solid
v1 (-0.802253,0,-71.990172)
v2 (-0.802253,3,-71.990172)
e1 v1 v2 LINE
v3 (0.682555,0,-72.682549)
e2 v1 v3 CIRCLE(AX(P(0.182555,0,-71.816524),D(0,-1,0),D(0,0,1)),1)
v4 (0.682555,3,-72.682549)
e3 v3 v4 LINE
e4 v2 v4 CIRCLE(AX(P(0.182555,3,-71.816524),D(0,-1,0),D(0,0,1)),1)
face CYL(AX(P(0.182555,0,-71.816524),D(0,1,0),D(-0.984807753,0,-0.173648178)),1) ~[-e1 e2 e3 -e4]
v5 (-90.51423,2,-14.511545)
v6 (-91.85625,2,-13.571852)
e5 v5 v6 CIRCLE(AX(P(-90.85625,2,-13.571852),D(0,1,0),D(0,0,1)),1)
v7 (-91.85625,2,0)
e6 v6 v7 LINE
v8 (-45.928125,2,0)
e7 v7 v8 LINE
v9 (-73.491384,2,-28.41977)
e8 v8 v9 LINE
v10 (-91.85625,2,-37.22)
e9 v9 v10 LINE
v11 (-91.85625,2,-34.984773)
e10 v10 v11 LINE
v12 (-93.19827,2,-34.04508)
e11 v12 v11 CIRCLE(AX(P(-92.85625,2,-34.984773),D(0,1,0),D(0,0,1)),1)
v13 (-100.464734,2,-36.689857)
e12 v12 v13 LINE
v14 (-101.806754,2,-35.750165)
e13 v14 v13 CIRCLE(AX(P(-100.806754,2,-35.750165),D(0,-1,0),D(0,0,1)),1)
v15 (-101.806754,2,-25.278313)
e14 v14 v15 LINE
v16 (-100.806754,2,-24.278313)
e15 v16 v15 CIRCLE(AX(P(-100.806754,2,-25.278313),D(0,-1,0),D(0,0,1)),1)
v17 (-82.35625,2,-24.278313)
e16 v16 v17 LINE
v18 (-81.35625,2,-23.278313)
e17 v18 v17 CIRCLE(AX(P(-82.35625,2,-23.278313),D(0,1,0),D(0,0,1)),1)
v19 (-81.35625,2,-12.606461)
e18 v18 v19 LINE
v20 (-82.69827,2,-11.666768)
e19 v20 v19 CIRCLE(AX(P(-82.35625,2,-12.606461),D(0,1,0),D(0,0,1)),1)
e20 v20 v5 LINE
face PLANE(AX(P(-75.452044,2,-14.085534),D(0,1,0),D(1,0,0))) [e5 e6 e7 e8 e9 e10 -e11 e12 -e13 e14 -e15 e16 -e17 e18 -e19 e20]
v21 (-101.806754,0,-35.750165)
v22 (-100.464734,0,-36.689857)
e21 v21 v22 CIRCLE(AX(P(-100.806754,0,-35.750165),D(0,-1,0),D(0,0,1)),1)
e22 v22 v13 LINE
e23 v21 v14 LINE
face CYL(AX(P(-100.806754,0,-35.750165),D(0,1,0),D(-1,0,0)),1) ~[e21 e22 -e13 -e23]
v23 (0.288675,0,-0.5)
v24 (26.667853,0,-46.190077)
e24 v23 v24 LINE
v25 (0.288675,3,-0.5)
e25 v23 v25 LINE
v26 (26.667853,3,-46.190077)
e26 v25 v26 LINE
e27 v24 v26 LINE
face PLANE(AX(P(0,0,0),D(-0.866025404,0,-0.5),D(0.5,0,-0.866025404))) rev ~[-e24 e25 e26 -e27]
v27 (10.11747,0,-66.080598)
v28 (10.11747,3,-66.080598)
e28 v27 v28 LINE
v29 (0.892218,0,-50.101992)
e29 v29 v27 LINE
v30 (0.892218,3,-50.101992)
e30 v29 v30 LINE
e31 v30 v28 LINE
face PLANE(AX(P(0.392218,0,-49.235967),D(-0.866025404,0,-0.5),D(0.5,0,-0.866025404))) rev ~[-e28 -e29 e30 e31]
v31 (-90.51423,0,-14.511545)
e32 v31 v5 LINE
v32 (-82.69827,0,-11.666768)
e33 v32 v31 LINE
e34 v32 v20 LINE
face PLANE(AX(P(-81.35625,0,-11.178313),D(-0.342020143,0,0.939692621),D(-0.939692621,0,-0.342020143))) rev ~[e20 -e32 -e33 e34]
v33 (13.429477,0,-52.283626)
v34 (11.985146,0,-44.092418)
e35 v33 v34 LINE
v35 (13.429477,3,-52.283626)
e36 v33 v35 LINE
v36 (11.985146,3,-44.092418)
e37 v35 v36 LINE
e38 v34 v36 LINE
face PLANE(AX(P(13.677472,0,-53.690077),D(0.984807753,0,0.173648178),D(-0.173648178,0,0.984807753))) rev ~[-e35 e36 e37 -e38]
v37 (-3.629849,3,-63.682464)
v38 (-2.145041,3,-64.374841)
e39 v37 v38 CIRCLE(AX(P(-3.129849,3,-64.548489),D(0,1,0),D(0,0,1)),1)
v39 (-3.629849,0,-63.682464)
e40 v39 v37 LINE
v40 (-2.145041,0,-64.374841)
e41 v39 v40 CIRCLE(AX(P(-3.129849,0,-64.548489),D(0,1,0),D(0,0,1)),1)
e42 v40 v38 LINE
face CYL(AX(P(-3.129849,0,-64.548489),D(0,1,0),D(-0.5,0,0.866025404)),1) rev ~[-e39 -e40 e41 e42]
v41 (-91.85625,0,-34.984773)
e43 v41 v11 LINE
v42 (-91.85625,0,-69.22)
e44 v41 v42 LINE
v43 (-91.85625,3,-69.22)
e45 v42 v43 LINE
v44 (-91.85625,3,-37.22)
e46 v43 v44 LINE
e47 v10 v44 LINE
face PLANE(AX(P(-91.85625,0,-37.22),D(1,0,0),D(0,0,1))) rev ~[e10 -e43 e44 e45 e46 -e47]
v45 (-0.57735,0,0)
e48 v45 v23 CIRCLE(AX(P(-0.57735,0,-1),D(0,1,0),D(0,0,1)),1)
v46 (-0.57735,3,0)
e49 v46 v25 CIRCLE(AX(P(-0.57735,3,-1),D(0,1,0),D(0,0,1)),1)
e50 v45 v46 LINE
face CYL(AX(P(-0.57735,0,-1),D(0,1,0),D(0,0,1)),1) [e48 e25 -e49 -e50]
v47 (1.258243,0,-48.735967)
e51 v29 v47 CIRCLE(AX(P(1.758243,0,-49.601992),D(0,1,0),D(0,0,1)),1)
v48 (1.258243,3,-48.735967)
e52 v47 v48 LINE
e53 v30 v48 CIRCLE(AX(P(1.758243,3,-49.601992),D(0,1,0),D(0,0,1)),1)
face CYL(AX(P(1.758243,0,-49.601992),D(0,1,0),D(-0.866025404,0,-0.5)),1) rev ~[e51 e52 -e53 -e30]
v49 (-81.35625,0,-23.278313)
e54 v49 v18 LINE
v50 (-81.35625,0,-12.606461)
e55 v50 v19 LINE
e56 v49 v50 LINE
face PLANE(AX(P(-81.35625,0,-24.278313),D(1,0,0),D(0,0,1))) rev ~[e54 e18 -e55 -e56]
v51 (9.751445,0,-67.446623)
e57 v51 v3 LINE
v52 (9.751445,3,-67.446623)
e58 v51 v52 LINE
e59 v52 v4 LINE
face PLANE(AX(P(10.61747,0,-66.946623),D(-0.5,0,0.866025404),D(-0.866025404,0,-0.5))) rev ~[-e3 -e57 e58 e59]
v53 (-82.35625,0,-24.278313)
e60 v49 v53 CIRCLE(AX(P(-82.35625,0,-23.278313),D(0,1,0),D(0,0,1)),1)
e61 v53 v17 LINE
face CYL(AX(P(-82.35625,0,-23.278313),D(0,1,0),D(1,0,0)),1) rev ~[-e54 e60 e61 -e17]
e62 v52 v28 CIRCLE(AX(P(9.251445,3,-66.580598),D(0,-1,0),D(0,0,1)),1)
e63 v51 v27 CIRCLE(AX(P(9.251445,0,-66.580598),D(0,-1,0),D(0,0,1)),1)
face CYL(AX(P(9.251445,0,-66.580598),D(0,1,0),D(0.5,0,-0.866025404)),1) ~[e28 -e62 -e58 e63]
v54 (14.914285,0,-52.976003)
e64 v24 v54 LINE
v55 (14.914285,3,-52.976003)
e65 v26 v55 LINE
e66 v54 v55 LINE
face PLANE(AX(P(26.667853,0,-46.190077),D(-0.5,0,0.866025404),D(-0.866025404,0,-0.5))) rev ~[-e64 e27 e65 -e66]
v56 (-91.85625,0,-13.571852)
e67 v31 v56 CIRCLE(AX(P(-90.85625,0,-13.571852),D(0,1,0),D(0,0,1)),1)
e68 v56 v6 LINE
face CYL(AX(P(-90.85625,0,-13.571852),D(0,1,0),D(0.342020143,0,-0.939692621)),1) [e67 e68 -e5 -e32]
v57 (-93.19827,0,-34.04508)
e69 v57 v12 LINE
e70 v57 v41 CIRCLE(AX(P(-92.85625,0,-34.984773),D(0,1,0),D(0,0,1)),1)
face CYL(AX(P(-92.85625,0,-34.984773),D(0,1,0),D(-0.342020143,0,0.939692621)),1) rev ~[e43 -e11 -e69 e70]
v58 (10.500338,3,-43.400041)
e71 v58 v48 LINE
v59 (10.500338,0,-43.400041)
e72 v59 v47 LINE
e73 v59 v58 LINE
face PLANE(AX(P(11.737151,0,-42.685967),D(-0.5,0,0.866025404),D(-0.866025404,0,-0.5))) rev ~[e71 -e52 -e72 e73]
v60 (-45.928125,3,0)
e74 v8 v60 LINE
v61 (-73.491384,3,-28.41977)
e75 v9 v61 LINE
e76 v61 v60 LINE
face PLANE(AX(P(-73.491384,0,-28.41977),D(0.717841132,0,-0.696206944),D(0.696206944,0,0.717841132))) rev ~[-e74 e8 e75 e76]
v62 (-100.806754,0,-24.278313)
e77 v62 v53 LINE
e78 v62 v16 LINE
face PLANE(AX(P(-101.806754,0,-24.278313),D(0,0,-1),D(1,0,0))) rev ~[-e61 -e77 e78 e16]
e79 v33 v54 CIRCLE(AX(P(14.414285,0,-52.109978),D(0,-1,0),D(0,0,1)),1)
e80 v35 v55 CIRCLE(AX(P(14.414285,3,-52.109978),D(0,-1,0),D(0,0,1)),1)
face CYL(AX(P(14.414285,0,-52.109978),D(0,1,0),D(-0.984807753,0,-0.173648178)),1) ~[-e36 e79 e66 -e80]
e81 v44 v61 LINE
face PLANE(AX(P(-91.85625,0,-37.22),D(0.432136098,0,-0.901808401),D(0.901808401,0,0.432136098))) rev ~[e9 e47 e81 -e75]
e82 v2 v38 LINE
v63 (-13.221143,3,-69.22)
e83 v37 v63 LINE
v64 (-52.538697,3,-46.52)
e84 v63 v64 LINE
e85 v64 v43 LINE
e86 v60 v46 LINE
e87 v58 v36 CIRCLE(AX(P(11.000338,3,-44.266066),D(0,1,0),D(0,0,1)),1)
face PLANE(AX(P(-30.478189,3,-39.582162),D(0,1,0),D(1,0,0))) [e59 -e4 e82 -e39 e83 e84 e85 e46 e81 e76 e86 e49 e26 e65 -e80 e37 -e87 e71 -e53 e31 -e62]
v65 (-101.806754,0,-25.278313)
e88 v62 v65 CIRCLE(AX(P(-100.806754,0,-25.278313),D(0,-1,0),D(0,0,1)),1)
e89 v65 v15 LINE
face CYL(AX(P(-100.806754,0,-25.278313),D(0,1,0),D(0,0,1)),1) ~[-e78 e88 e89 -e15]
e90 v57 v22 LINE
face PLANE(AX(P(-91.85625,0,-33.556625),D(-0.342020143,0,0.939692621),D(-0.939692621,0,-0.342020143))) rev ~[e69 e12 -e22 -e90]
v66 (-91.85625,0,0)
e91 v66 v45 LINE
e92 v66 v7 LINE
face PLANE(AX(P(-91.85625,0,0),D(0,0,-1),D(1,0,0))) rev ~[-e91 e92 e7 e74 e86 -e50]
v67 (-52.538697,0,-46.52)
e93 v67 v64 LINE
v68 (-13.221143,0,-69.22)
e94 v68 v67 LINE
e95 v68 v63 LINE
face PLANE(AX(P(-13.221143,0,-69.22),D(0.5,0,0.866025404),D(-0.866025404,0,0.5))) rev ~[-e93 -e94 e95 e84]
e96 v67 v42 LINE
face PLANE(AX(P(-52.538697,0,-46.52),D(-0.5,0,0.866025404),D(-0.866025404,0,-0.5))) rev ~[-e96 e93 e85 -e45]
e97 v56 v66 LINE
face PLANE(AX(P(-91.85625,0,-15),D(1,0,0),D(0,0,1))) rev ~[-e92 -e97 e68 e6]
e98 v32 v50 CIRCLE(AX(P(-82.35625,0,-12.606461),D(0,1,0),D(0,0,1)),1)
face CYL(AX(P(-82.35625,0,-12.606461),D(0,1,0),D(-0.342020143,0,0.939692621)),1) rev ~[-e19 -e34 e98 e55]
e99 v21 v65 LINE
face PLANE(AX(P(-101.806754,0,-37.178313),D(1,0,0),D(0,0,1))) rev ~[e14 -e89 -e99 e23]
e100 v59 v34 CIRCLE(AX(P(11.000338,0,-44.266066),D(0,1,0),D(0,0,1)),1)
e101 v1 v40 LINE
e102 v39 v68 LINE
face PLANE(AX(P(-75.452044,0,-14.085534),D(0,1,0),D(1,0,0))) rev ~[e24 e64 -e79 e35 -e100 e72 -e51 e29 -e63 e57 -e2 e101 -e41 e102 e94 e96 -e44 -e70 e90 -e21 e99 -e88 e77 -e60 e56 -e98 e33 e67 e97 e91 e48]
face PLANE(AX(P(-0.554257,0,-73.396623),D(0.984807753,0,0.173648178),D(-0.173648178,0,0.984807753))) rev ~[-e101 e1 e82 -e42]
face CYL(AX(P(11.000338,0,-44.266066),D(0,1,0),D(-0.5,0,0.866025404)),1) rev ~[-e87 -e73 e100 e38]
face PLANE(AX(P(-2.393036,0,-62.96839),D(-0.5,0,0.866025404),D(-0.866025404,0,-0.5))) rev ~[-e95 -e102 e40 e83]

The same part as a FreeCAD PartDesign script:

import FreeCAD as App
import Part
import Sketcher
Q = App.Units.Quantity


def edges_at(feature, points):
    """Names of the edges that pass closest to the given points."""
    edges = feature.Shape.Edges
    near = lambda p: min(range(len(edges)), key=lambda i: edges[i].distToShape(Part.Vertex(*p))[0])
    return sorted({f"Edge{near(p) + 1}" for p in points})

doc = App.newDocument("Part")
params = doc.addObject("Spreadsheet::Sheet", "Params")
for row, (alias, value) in enumerate([
    ("sketch1_height", "32 mm"),
    ("sketch1_length", "15 mm"),
    ("sketch1_length2", "13.1 mm"),
    ("sketch1_length3", "12.9 mm"),
    ("sketch1_length4", "45.4 mm"),
    ("pad1_length", "3 mm"),
    ("sketch2_height", "15 mm"),
    ("sketch2_height2", "12.9 mm"),
    ("sketch2_height3", "13.1 mm"),
    ("pad2_length", "2 mm"),
    ("fillet_radius", "1 mm"),
], start=1):
    params.set(f"A{row}", alias)
    params.set(f"B{row}", "=" + value)
    params.setAlias(f"B{row}", alias)

body = doc.addObject("PartDesign::Body", "Body")

# Sketch on XZ plane
sketch1 = body.newObject("Sketcher::SketchObject", "Sketch")
sketch1.AttachmentSupport = (doc.getObject("XZ_Plane"), [""])
sketch1.MapMode = "FlatFace"
sketch1.addGeometry([
    Part.LineSegment(App.Vector(27, -46, 0), App.Vector(14, -54, 0)),  # 0
    Part.LineSegment(App.Vector(14, -54, 0), App.Vector(12, -43, 0)),  # 1
    Part.LineSegment(App.Vector(12, -43, 0), App.Vector(0, -49, 0)),  # 2
    Part.LineSegment(App.Vector(0, -49, 0), App.Vector(11, -67, 0)),  # 3
    Part.LineSegment(App.Vector(11, -67, 0), App.Vector(-1, -73, 0)),  # 4
    Part.LineSegment(App.Vector(-1, -73, 0), App.Vector(-2, -63, 0)),  # 5
    Part.LineSegment(App.Vector(-2, -63, 0), App.Vector(-13, -69, 0)),  # 6
    Part.LineSegment(App.Vector(-13, -69, 0), App.Vector(-53, -47, 0)),  # 7
    Part.LineSegment(App.Vector(-53, -47, 0), App.Vector(-92, -69, 0)),  # 8
    Part.LineSegment(App.Vector(-92, -69, 0), App.Vector(-92, -37, 0)),  # 9
    Part.LineSegment(App.Vector(-92, -37, 0), App.Vector(-73, -28, 0)),  # 10
    Part.LineSegment(App.Vector(-73, -28, 0), App.Vector(-46, 0, 0)),  # 11
    Part.LineSegment(App.Vector(-46, 0, 0), App.Vector(0, 0, 0)),  # 12
    Part.LineSegment(App.Vector(0, 0, 0), App.Vector(27, -46, 0)),  # 13
], False)
sketch1.addConstraint([
    Sketcher.Constraint("Coincident", 0, 2, 1, 1),
    Sketcher.Constraint("Coincident", 1, 2, 2, 1),
    Sketcher.Constraint("Coincident", 2, 2, 3, 1),
    Sketcher.Constraint("Coincident", 3, 2, 4, 1),
    Sketcher.Constraint("Coincident", 4, 2, 5, 1),
    Sketcher.Constraint("Coincident", 5, 2, 6, 1),
    Sketcher.Constraint("Coincident", 6, 2, 7, 1),
    Sketcher.Constraint("Coincident", 7, 2, 8, 1),
    Sketcher.Constraint("Coincident", 8, 2, 9, 1),
    Sketcher.Constraint("Coincident", 9, 2, 10, 1),
    Sketcher.Constraint("Coincident", 10, 2, 11, 1),
    Sketcher.Constraint("Coincident", 11, 2, 12, 1),
    Sketcher.Constraint("Coincident", 12, 2, 13, 1),
    Sketcher.Constraint("Coincident", 13, 2, 0, 1),
    Sketcher.Constraint("Vertical", 9),
    Sketcher.Constraint("Horizontal", 12),
    Sketcher.Constraint("Coincident", 12, 2, -1, 1),
    Sketcher.Constraint("Parallel", 0, 2),
    Sketcher.Constraint("Perpendicular", 2, 3),
    Sketcher.Constraint("Perpendicular", 3, 4),
    Sketcher.Constraint("Parallel", 1, 5),
    Sketcher.Constraint("Parallel", 4, 6),
    Sketcher.Constraint("Parallel", 6, 8),
    Sketcher.Constraint("Perpendicular", 8, 13),
    Sketcher.Constraint("Horizontal", 6, 2, 8, 2),
    Sketcher.Constraint("Equal", 7, 8),
    Sketcher.Constraint("DistanceY", 9, 1, 9, 2, Q("32 mm")),
    Sketcher.Constraint("Angle", 0, Q("-150 deg")),
    Sketcher.Constraint("Angle", 1, Q("100 deg")),
    Sketcher.Constraint("Distance", 0, Q("15 mm")),
    Sketcher.Constraint("Distance", 2, Q("13.1 mm")),
    Sketcher.Constraint("Distance", 4, Q("12.9 mm")),
    Sketcher.Constraint("Distance", 7, Q("45.4 mm")),
    Sketcher.Constraint("DistanceY", 6, 2, -1, 1, Q("69.22 mm")),
    Sketcher.Constraint("Distance", 6, Q("12.503221 mm")),
    Sketcher.Constraint("DistanceX", 12, 1, 12, 2, Q("45.928125 mm")),
    Sketcher.Constraint("DistanceX", -1, 1, 1, 2, Q("11.737151 mm")),
    Sketcher.Constraint("DistanceX", -1, 1, 3, 2, Q("10.61747 mm")),
    Sketcher.Constraint("DistanceX", 8, 2, -1, 1, Q("91.85625 mm")),
    Sketcher.Constraint("DistanceY", 10, 2, -1, 1, Q("28.41977 mm")),
    Sketcher.Constraint("DistanceX", 10, 2, 6, 2, Q("60.270241 mm")),
])
sketch1.setExpression("Constraints[26]", "Params.sketch1_height")
sketch1.setExpression("Constraints[29]", "Params.sketch1_length")
sketch1.setExpression("Constraints[30]", "Params.sketch1_length2")
sketch1.setExpression("Constraints[31]", "Params.sketch1_length3")
sketch1.setExpression("Constraints[32]", "Params.sketch1_length4")
pad1 = body.newObject("PartDesign::Pad", "Pad")
pad1.Profile = sketch1
pad1.setExpression("Length", "Params.pad1_length")
pad1.Reversed = True

# Sketch on XZ plane
sketch2 = body.newObject("Sketcher::SketchObject", "Sketch001")
sketch2.AttachmentSupport = (doc.getObject("XZ_Plane"), [""])
sketch2.MapMode = "FlatFace"
sketch2.addGeometry([
    Part.LineSegment(App.Vector(-91.9, 0, 0), App.Vector(-45.9, 0, 0)),  # 0
    Part.LineSegment(App.Vector(-45.9, 0, 0), App.Vector(-73.5, -28.4, 0)),  # 1
    Part.LineSegment(App.Vector(-73.5, -28.4, 0), App.Vector(-91.9, -37.2, 0)),  # 2
    Part.LineSegment(App.Vector(-91.9, -37.2, 0), App.Vector(-91.9, -33.6, 0)),  # 3
    Part.LineSegment(App.Vector(-91.9, -33.6, 0), App.Vector(-101.8, -37.2, 0)),  # 4
    Part.LineSegment(App.Vector(-101.8, -37.2, 0), App.Vector(-101.8, -24.3, 0)),  # 5
    Part.LineSegment(App.Vector(-101.8, -24.3, 0), App.Vector(-81.4, -24.3, 0)),  # 6
    Part.LineSegment(App.Vector(-81.4, -24.3, 0), App.Vector(-81.4, -11.2, 0)),  # 7
    Part.LineSegment(App.Vector(-81.4, -11.2, 0), App.Vector(-91.9, -15, 0)),  # 8
    Part.LineSegment(App.Vector(-91.9, -15, 0), App.Vector(-91.9, 0, 0)),  # 9
], False)
sketch2.addConstraint([
    Sketcher.Constraint("Coincident", 0, 2, 1, 1),
    Sketcher.Constraint("Coincident", 1, 2, 2, 1),
    Sketcher.Constraint("Coincident", 2, 2, 3, 1),
    Sketcher.Constraint("Coincident", 3, 2, 4, 1),
    Sketcher.Constraint("Coincident", 4, 2, 5, 1),
    Sketcher.Constraint("Coincident", 5, 2, 6, 1),
    Sketcher.Constraint("Coincident", 6, 2, 7, 1),
    Sketcher.Constraint("Coincident", 7, 2, 8, 1),
    Sketcher.Constraint("Coincident", 8, 2, 9, 1),
    Sketcher.Constraint("Coincident", 9, 2, 0, 1),
    Sketcher.Constraint("Horizontal", 0),
    Sketcher.Constraint("Vertical", 3),
    Sketcher.Constraint("Vertical", 5),
    Sketcher.Constraint("Horizontal", 6),
    Sketcher.Constraint("Vertical", 7),
    Sketcher.Constraint("Vertical", 9),
    Sketcher.Constraint("PointOnObject", 0, 2, -1),
    Sketcher.Constraint("Parallel", 4, 8),
    Sketcher.Constraint("Vertical", 3, 2, 8, 2),
    Sketcher.Constraint("DistanceY", 9, 1, 9, 2, Q("15 mm")),
    Sketcher.Constraint("Angle", 4, Q("-160 deg")),
    Sketcher.Constraint("DistanceY", 5, 1, 5, 2, Q("12.9 mm")),
    Sketcher.Constraint("DistanceY", 7, 1, 7, 2, Q("13.1 mm")),
    Sketcher.Constraint("DistanceX", 3, 2, 6, 2, Q("10.5 mm")),
    Sketcher.Constraint("DistanceY", 2, 2, -1, 1, Q("37.22 mm")),
    Sketcher.Constraint("DistanceX", 0, 1, 0, 2, Q("45.928125 mm")),
    Sketcher.Constraint("DistanceX", 6, 1, 6, 2, Q("20.450505 mm")),
    Sketcher.Constraint("DistanceY", 1, 2, -1, 1, Q("28.41977 mm")),
    Sketcher.Constraint("DistanceX", 2, 2, -1, 1, Q("91.85625 mm")),
    Sketcher.Constraint("DistanceX", 1, 2, 0, 2, Q("27.563259 mm")),
])
sketch2.setExpression("Constraints[19]", "Params.sketch2_height")
sketch2.setExpression("Constraints[21]", "Params.sketch2_height2")
sketch2.setExpression("Constraints[22]", "Params.sketch2_height3")
pad2 = body.newObject("PartDesign::Pad", "Pad001")
pad2.Profile = sketch2
pad2.setExpression("Length", "Params.pad2_length")
pad2.Reversed = True
doc.recompute()

fillet = body.newObject("PartDesign::Fillet", "Fillet")
fillet.Base = (pad2, edges_at(pad2, [
    (10.617, 1.5, -66.947),
    (0.392, 1.5, -49.236),
    (11.737, 1.5, -42.686),
    (13.677, 1.5, -53.69),
    (0, 1.5, 0),
    (-2.393, 1.5, -62.968),
    (-0.554, 1.5, -73.397),
    (-91.856, 1, -33.557),
    (-101.807, 1, -37.178),
    (-101.807, 1, -24.278),
    (-81.356, 1, -24.278),
    (-81.356, 1, -11.178),
    (-91.856, 1, -15),
]))
fillet.setExpression("Radius", "Params.fillet_radius")

doc.recompute()
